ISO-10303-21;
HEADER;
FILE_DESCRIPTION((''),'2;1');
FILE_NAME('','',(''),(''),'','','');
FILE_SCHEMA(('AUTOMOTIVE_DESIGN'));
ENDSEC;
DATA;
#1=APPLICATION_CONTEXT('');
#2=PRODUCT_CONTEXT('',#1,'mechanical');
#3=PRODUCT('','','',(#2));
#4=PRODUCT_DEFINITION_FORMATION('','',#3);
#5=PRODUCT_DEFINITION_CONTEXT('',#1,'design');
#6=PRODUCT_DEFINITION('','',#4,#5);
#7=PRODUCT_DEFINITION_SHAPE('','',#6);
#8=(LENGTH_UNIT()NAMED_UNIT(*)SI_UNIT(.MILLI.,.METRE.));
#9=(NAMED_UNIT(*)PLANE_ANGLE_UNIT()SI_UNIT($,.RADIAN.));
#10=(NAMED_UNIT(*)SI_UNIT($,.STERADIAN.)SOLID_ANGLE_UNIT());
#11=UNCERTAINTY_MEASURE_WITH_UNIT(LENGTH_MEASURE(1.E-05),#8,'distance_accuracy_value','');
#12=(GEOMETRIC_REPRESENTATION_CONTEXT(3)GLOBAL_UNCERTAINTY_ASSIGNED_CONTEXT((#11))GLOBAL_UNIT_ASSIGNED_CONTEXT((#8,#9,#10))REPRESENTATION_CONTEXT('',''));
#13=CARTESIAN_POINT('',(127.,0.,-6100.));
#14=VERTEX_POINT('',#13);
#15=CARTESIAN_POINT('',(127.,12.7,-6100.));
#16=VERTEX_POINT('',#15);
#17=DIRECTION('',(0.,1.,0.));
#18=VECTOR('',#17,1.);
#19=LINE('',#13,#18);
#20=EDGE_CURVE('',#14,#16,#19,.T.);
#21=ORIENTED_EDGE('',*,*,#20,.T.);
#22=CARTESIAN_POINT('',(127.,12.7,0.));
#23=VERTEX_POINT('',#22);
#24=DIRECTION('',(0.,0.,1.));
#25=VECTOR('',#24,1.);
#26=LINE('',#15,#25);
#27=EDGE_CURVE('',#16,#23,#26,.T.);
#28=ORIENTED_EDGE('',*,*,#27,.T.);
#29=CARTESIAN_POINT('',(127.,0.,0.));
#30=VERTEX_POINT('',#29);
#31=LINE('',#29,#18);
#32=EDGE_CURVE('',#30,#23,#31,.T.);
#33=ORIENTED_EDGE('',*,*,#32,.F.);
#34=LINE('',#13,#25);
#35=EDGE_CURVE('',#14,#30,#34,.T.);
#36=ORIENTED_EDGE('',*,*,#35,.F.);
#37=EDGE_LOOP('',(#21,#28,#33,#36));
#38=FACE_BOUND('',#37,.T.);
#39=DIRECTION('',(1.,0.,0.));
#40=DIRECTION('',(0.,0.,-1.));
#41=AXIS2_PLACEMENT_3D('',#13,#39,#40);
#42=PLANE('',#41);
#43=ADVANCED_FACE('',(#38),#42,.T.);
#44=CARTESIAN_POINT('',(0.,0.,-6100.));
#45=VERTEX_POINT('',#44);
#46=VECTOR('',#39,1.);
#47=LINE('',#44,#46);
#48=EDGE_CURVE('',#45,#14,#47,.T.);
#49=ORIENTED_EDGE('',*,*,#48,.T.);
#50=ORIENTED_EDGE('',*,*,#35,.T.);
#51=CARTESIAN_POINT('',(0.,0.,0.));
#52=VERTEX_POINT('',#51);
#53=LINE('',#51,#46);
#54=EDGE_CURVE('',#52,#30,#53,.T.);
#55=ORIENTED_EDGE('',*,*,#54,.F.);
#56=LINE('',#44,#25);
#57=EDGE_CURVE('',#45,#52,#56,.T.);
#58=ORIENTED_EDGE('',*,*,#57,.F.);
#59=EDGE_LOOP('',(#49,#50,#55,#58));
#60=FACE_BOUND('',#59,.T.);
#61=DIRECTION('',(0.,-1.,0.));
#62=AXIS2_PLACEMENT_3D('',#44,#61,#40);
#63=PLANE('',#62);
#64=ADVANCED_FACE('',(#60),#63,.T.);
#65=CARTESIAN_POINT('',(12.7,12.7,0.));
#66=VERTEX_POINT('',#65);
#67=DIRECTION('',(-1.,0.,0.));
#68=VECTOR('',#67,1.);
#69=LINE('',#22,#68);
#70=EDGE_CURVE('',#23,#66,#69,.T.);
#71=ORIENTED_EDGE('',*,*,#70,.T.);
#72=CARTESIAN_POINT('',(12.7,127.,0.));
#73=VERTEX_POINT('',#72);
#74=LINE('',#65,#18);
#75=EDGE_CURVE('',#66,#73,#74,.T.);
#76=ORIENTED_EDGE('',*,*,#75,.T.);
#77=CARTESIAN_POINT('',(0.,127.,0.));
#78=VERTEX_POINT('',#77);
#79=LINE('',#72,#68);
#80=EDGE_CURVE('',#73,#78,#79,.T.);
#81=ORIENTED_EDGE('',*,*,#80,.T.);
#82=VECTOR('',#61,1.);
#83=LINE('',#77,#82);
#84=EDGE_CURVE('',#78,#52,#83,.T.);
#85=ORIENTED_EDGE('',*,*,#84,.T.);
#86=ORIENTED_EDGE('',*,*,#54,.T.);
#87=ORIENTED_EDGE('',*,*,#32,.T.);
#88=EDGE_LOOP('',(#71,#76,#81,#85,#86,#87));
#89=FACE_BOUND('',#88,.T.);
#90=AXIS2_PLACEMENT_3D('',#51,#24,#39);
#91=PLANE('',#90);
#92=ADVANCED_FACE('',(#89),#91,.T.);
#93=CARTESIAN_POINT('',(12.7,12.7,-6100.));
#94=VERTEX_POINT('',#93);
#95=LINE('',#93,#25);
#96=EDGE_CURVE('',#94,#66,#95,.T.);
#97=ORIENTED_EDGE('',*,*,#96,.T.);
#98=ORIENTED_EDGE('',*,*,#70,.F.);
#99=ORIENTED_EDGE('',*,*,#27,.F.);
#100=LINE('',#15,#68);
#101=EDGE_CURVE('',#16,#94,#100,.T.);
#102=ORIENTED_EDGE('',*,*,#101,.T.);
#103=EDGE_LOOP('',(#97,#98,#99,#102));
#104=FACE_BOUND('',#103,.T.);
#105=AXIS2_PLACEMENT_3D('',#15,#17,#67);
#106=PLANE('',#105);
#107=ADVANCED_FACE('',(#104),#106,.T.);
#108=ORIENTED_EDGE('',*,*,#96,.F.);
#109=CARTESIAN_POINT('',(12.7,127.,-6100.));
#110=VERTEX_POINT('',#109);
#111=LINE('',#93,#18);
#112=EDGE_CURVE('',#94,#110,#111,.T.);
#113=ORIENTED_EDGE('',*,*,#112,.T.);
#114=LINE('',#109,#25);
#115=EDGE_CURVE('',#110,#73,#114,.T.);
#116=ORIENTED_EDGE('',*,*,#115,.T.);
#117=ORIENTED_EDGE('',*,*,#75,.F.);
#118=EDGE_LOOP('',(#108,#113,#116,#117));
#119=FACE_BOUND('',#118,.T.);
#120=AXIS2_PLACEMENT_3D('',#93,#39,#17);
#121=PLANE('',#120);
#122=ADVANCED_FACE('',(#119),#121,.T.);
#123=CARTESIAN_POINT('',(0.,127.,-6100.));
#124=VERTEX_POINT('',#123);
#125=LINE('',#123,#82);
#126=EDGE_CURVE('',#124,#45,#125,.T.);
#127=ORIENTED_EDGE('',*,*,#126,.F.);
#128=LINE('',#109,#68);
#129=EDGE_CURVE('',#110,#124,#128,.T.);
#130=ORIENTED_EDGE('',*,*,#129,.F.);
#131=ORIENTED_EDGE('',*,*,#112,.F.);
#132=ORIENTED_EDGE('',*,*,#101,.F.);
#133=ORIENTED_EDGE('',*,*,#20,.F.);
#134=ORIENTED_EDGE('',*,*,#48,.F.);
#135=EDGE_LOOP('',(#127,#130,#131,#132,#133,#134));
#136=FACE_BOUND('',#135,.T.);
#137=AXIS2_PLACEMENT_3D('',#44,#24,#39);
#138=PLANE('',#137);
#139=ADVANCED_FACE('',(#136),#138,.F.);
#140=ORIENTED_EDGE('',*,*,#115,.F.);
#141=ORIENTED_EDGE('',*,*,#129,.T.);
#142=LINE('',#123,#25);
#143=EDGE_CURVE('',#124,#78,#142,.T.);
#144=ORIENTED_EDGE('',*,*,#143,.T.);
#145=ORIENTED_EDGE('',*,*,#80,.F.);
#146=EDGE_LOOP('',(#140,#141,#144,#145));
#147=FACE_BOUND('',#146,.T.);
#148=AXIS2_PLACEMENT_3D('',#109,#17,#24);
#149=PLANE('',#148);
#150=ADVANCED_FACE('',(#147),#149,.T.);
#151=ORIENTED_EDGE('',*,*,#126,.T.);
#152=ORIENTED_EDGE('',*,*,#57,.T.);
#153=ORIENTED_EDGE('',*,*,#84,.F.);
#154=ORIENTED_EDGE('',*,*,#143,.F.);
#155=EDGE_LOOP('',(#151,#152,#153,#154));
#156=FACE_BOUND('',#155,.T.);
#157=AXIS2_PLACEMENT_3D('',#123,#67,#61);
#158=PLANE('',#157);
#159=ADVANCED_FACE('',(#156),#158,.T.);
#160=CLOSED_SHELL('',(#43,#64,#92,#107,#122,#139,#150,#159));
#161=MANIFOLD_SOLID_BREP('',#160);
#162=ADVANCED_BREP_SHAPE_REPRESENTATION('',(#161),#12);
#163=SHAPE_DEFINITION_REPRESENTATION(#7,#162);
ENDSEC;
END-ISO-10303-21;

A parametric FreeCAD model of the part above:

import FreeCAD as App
import Part
import Sketcher

V = App.Vector
Q = App.Units.Quantity

doc = App.newDocument("Part")
body = doc.addObject("PartDesign::Body", "Body")

# Sketch on XY plane
sketch1 = body.newObject("Sketcher::SketchObject", "Sketch")
sketch1.AttachmentSupport = (doc.getObject("XY_Plane"), [""])
sketch1.MapMode = "FlatFace"
sketch1.addGeometry(Part.LineSegment(V(0, 127, 0), V(0, 0, 0)), False)
sketch1.addGeometry(Part.LineSegment(V(0, 0, 0), V(127, 0, 0)), False)
sketch1.addGeometry(Part.LineSegment(V(127, 0, 0), V(127, 13, 0)), False)
sketch1.addGeometry(Part.LineSegment(V(127, 13, 0), V(13, 13, 0)), False)
sketch1.addGeometry(Part.LineSegment(V(13, 13, 0), V(13, 127, 0)), False)
sketch1.addGeometry(Part.LineSegment(V(13, 127, 0), V(0, 127, 0)), False)
sketch1.addConstraint(Sketcher.Constraint("Coincident", 0, 2, 1, 1))
sketch1.addConstraint(Sketcher.Constraint("Coincident", 1, 2, 2, 1))
sketch1.addConstraint(Sketcher.Constraint("Coincident", 2, 2, 3, 1))
sketch1.addConstraint(Sketcher.Constraint("Coincident", 3, 2, 4, 1))
sketch1.addConstraint(Sketcher.Constraint("Coincident", 4, 2, 5, 1))
sketch1.addConstraint(Sketcher.Constraint("Coincident", 5, 2, 0, 1))
sketch1.addConstraint(Sketcher.Constraint("Vertical", 0))
sketch1.addConstraint(Sketcher.Constraint("Horizontal", 1))
sketch1.addConstraint(Sketcher.Constraint("Vertical", 2))
sketch1.addConstraint(Sketcher.Constraint("Horizontal", 3))
sketch1.addConstraint(Sketcher.Constraint("Vertical", 4))
sketch1.addConstraint(Sketcher.Constraint("Horizontal", 5))
sketch1.addConstraint(Sketcher.Constraint("Coincident", 0, 2, -1, 1))
sketch1.addConstraint(Sketcher.Constraint("Equal", 1, 0))
sketch1.addConstraint(Sketcher.Constraint("Equal", 5, 2))
sketch1.addConstraint(Sketcher.Constraint("DistanceX", 1, 1, 1, 2, Q("5 in")))
sketch1.addConstraint(Sketcher.Constraint("DistanceX", 3, 2, 3, 1, Q("4.5 in")))
pad1 = body.newObject("PartDesign::Pad", "Pad")
pad1.Profile = sketch1
pad1.Length = 6100
pad1.Reversed = True

doc.recompute()
